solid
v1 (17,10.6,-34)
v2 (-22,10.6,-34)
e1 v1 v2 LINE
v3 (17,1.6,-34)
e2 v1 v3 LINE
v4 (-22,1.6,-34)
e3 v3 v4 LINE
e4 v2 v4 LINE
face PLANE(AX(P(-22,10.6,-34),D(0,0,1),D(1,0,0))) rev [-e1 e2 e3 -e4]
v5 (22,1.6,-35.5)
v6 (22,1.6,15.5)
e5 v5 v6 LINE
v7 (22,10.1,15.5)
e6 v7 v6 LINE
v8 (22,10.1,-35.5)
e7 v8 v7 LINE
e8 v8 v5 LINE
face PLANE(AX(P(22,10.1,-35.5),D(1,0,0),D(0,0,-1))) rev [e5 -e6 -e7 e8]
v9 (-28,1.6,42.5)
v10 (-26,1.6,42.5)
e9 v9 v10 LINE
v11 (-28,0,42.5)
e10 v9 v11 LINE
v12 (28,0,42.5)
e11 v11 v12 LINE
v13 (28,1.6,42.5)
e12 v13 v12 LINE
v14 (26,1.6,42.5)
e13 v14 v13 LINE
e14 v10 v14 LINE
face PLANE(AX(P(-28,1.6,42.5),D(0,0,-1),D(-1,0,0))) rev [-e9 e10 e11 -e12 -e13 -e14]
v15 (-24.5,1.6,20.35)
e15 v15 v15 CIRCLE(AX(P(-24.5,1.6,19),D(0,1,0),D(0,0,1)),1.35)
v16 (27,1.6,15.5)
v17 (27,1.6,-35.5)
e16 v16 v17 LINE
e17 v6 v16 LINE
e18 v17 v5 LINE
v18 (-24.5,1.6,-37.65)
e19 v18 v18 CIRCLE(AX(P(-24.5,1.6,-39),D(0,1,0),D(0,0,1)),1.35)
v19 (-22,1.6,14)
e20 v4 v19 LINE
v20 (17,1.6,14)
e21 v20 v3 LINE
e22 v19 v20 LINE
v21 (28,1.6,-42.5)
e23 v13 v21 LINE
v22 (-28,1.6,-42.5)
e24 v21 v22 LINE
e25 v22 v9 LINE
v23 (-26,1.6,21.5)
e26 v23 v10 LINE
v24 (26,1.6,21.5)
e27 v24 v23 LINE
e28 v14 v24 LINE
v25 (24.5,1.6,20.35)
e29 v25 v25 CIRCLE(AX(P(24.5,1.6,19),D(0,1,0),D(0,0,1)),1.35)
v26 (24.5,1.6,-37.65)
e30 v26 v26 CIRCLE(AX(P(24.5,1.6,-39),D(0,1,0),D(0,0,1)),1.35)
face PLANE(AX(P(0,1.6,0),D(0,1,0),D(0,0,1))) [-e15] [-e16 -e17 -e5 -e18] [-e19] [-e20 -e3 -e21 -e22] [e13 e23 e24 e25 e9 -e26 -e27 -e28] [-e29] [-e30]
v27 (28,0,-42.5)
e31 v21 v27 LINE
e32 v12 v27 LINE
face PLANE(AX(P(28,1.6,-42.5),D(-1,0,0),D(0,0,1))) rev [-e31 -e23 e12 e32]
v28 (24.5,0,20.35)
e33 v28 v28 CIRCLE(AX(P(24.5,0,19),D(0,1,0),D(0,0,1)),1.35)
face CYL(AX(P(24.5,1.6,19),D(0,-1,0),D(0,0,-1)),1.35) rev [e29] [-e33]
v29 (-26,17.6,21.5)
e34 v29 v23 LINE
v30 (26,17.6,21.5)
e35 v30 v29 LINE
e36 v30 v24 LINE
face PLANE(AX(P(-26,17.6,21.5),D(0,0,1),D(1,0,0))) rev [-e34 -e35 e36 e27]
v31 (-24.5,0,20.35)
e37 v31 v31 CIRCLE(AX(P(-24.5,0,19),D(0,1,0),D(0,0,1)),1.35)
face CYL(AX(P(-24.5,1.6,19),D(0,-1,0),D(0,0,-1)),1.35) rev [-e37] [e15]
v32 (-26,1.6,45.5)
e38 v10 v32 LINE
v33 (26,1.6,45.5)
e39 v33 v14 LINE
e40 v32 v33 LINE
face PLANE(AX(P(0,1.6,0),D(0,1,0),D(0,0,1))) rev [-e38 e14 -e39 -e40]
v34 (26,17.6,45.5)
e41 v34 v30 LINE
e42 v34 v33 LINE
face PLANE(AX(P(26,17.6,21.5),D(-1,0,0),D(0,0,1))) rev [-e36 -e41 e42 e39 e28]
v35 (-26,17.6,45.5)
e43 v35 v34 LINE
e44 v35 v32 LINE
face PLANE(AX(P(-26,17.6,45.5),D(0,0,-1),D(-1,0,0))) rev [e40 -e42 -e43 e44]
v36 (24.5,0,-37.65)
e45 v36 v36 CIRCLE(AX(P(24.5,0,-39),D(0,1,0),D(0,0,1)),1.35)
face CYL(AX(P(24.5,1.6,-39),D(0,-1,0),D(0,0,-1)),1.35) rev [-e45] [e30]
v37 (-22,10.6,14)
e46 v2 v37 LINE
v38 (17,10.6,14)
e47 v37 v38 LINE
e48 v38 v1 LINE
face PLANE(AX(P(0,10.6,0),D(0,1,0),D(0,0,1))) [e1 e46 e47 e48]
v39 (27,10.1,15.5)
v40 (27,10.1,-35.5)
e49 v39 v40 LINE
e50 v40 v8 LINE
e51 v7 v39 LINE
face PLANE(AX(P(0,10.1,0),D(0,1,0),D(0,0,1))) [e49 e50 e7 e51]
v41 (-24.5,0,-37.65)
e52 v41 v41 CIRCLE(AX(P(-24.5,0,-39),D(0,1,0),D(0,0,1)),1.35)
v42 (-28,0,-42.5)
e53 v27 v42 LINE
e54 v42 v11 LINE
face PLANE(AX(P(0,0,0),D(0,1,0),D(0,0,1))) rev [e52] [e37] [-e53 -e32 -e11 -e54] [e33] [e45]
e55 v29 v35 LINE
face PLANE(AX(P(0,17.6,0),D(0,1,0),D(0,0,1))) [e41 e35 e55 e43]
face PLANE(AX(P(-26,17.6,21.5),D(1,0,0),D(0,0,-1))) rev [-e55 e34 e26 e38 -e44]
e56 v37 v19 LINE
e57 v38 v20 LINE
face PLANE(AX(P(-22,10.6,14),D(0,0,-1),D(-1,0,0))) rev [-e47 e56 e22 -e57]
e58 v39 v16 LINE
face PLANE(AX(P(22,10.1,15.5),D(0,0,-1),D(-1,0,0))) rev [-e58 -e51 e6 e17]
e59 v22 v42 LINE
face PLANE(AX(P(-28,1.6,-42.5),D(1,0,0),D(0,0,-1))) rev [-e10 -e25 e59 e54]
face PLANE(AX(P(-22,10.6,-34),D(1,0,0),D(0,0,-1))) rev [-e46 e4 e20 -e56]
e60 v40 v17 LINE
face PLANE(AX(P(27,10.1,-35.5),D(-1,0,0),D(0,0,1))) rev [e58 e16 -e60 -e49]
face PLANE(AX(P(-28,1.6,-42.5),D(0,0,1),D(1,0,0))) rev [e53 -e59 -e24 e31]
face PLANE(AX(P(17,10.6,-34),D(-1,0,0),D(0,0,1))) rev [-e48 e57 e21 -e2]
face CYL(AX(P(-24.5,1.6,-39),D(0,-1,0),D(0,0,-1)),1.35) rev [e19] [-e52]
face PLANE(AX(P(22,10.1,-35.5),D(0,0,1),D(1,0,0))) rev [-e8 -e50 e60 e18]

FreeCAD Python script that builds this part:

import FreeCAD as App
import Part
import Sketcher
from FreeCAD import Vector
Q = App.Units.Quantity

doc = App.newDocument("Part")
body = doc.addObject("PartDesign::Body", "Body")

sketch1 = body.newObject("Sketcher::SketchObject", "Sketch")
sketch1.AttachmentSupport = (doc.getObject("XZ_Plane"), [""])
sketch1.MapMode = "FlatFace"
sketch1.addGeometry([
    Part.LineSegment(Vector(-28, -42, 0), Vector(-28, 42, 0)),
    Part.LineSegment(Vector(-28, 42, 0), Vector(28, 42, 0)),
    Part.LineSegment(Vector(28, 42, 0), Vector(28, -42, 0)),
    Part.LineSegment(Vector(28, -42, 0), Vector(-28, -42, 0)),
], False)
sketch1.addConstraint([
    Sketcher.Constraint("Coincident", 0, 2, 1, 1),
    Sketcher.Constraint("Coincident", 1, 2, 2, 1),
    Sketcher.Constraint("Coincident", 2, 2, 3, 1),
    Sketcher.Constraint("Coincident", 3, 2, 0, 1),
    Sketcher.Constraint("Vertical", 0),
    Sketcher.Constraint("Horizontal", 1),
    Sketcher.Constraint("Vertical", 2),
    Sketcher.Constraint("Horizontal", 3),
    Sketcher.Constraint("Symmetric", 0, 2, 2, 2, -1, 1),
    Sketcher.Constraint("DistanceX", 1, 1, 1, 2, Q("56 mm")),
    Sketcher.Constraint("DistanceY", 0, 1, 0, 2, Q("85 mm")),
])
pad1 = body.newObject("PartDesign::Pad", "Pad")
pad1.Profile = sketch1
pad1.Length = 1.6
pad1.Reversed = True

sketch2 = body.newObject("Sketcher::SketchObject", "Sketch001")
sketch2.AttachmentSupport = (doc.getObject("XZ_Plane"), [""])
sketch2.MapMode = "FlatFace"
sketch2.addGeometry([
    Part.Circle(Vector(-24.5, -39, 0), Vector(0, 0, 1), 1.4),
    Part.Circle(Vector(24.5, -39, 0), Vector(0, 0, 1), 1.4),
    Part.Circle(Vector(-24.5, 19, 0), Vector(0, 0, 1), 1.4),
    Part.Circle(Vector(24.5, 19, 0), Vector(0, 0, 1), 1.4),
], False)
sketch2.addConstraint([
    Sketcher.Constraint("Equal", 0, 1),
    Sketcher.Constraint("Equal", 1, 2),
    Sketcher.Constraint("Equal", 2, 3),
    Sketcher.Constraint("Symmetric", 0, 3, 1, 3, -2),
    Sketcher.Constraint("Symmetric", 2, 3, 3, 3, -2),
    Sketcher.Constraint("Vertical", 0, 3, 2, 3),
    Sketcher.Constraint("Diameter", 0, Q("2.7 mm")),
    Sketcher.Constraint("DistanceY", 0, 3, -1, 1, Q("39 mm")),
    Sketcher.Constraint("DistanceY", -1, 1, 2, 3, Q("19 mm")),
    Sketcher.Constraint("DistanceX", 0, 3, 1, 3, Q("49 mm")),
])
pocket1 = body.newObject("PartDesign::Pocket", "Pocket")
pocket1.Profile = sketch2
pocket1.Length = 1.6

sketch3 = body.newObject("Sketcher::SketchObject", "Sketch002")
sketch3.AttachmentSupport = (doc.getObject("XZ_Plane"), [""])
sketch3.MapMode = "FlatFace"
sketch3.AttachmentOffset = App.Placement(Vector(0, 0, -1.6), App.Rotation())
sketch3.addGeometry([
    Part.LineSegment(Vector(-26, 22, 0), Vector(-26, 46, 0)),
    Part.LineSegment(Vector(-26, 46, 0), Vector(26, 46, 0)),
    Part.LineSegment(Vector(26, 46, 0), Vector(26, 22, 0)),
    Part.LineSegment(Vector(26, 22, 0), Vector(-26, 22, 0)),
], False)
sketch3.addConstraint([
    Sketcher.Constraint("Coincident", 0, 2, 1, 1),
    Sketcher.Constraint("Coincident", 1, 2, 2, 1),
    Sketcher.Constraint("Coincident", 2, 2, 3, 1),
    Sketcher.Constraint("Coincident", 3, 2, 0, 1),
    Sketcher.Constraint("Vertical", 0),
    Sketcher.Constraint("Horizontal", 1),
    Sketcher.Constraint("Vertical", 2),
    Sketcher.Constraint("Horizontal", 3),
    Sketcher.Constraint("DistanceX", 1, 1, 1, 2, Q("52 mm")),
    Sketcher.Constraint("DistanceY", 0, 1, 0, 2, Q("24 mm")),
    Sketcher.Constraint("DistanceX", 0, 2, -1, 1, Q("26 mm")),
    Sketcher.Constraint("DistanceY", -1, 1, 0, 2, Q("45.5 mm")),
])
pad2 = body.newObject("PartDesign::Pad", "Pad001")
pad2.Profile = sketch3
pad2.Length = 16
pad2.Reversed = True

sketch4 = body.newObject("Sketcher::SketchObject", "Sketch003")
sketch4.AttachmentSupport = (doc.getObject("XZ_Plane"), [""])
sketch4.MapMode = "FlatFace"
sketch4.AttachmentOffset = App.Placement(Vector(0, 0, -1.6), App.Rotation())
sketch4.addGeometry([
    Part.LineSegment(Vector(-22, -34, 0), Vector(-22, 14, 0)),
    Part.LineSegment(Vector(-22, 14, 0), Vector(17, 14, 0)),
    Part.LineSegment(Vector(17, 14, 0), Vector(17, -34, 0)),
    Part.LineSegment(Vector(17, -34, 0), Vector(-22, -34, 0)),
], False)
sketch4.addConstraint([
    Sketcher.Constraint("Coincident", 0, 2, 1, 1),
    Sketcher.Constraint("Coincident", 1, 2, 2, 1),
    Sketcher.Constraint("Coincident", 2, 2, 3, 1),
    Sketcher.Constraint("Coincident", 3, 2, 0, 1),
    Sketcher.Constraint("Vertical", 0),
    Sketcher.Constraint("Horizontal", 1),
    Sketcher.Constraint("Vertical", 2),
    Sketcher.Constraint("Horizontal", 3),
    Sketcher.Constraint("DistanceX", 1, 1, 1, 2, Q("39 mm")),
    Sketcher.Constraint("DistanceY", 0, 1, 0, 2, Q("48 mm")),
    Sketcher.Constraint("DistanceX", 0, 2, -1, 1, Q("22 mm")),
    Sketcher.Constraint("DistanceY", -1, 1, 0, 2, Q("14 mm")),
])
pad3 = body.newObject("PartDesign::Pad", "Pad002")
pad3.Profile = sketch4
pad3.Length = 9
pad3.Reversed = True

sketch5 = body.newObject("Sketcher::SketchObject", "Sketch004")
sketch5.AttachmentSupport = (doc.getObject("XZ_Plane"), [""])
sketch5.MapMode = "FlatFace"
sketch5.AttachmentOffset = App.Placement(Vector(0, 0, -1.6), App.Rotation())
sketch5.addGeometry([
    Part.LineSegment(Vector(22, -36, 0), Vector(22, 16, 0)),
    Part.LineSegment(Vector(22, 16, 0), Vector(27, 16, 0)),
    Part.LineSegment(Vector(27, 16, 0), Vector(27, -36, 0)),
    Part.LineSegment(Vector(27, -36, 0), Vector(22, -36, 0)),
], False)
sketch5.addConstraint([
    Sketcher.Constraint("Coincident", 0, 2, 1, 1),
    Sketcher.Constraint("Coincident", 1, 2, 2, 1),
    Sketcher.Constraint("Coincident", 2, 2, 3, 1),
    Sketcher.Constraint("Coincident", 3, 2, 0, 1),
    Sketcher.Constraint("Vertical", 0),
    Sketcher.Constraint("Horizontal", 1),
    Sketcher.Constraint("Vertical", 2),
    Sketcher.Constraint("Horizontal", 3),
    Sketcher.Constraint("DistanceX", 1, 1, 1, 2, Q("5 mm")),
    Sketcher.Constraint("DistanceY", 0, 1, 0, 2, Q("51 mm")),
    Sketcher.Constraint("DistanceX", -1, 1, 0, 2, Q("22 mm")),
    Sketcher.Constraint("DistanceY", -1, 1, 0, 2, Q("15.5 mm")),
])
pad4 = body.newObject("PartDesign::Pad", "Pad003")
pad4.Profile = sketch5
pad4.Length = 8.5
pad4.Reversed = True

doc.recompute()
